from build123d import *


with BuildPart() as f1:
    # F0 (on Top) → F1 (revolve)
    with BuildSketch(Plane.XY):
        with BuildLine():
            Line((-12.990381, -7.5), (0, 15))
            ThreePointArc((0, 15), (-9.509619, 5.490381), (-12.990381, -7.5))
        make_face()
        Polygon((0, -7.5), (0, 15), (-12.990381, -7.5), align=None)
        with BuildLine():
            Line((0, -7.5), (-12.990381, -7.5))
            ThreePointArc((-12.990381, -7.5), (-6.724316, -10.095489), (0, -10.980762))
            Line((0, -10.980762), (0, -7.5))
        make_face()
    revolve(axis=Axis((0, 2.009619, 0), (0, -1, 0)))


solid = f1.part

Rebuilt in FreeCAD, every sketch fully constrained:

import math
import FreeCAD as App
import Part
import Sketcher
from FreeCAD import Vector

doc = App.newDocument("Part")
body = doc.addObject("PartDesign::Body", "Body")

# Sketch on XY plane
sketch1 = body.newObject("Sketcher::SketchObject", "Sketch")
sketch1.AttachmentSupport = (doc.getObject("XY_Plane"), [""])
sketch1.MapMode = "FlatFace"
sketch1.addGeometry([
    Part.ArcOfCircle(Part.Circle(Vector(13, -7, 0), Vector(0, 0, 1), 26), math.radians(120), math.radians(180)),
    Part.ArcOfCircle(Part.Circle(Vector(0, 15, 0), Vector(0, 0, 1), 26), math.radians(-120), math.radians(-90)),
    Part.LineSegment(Vector(0, -11, 0), Vector(0, 15, 0)),
], False)
sketch1.addConstraint([
    Sketcher.Constraint("Coincident", 0, 2, 1, 1),
    Sketcher.Constraint("Coincident", 1, 2, 2, 1),
    Sketcher.Constraint("Coincident", 2, 2, 0, 1),
    Sketcher.Constraint("Vertical", 2),
    Sketcher.Constraint("Coincident", 2, 2, 1, 3),
    Sketcher.Constraint("Equal", 0, 1),
    Sketcher.Constraint("PointOnObject", 1, 3, -2),
    Sketcher.Constraint("DistanceY", -1, 1, 1, 3, 15.000001),
    Sketcher.Constraint("DistanceY", 0, 3, -1, 1, 7.5),
    Sketcher.Constraint("DistanceY", 0, 2, -1, 1, 7.5),
])
revolution = body.newObject("PartDesign::Revolution", "Revolution")
revolution.Profile = sketch1
revolution.ReferenceAxis = (sketch1, ["V_Axis"])
revolution.Angle = 360

doc.recompute()
